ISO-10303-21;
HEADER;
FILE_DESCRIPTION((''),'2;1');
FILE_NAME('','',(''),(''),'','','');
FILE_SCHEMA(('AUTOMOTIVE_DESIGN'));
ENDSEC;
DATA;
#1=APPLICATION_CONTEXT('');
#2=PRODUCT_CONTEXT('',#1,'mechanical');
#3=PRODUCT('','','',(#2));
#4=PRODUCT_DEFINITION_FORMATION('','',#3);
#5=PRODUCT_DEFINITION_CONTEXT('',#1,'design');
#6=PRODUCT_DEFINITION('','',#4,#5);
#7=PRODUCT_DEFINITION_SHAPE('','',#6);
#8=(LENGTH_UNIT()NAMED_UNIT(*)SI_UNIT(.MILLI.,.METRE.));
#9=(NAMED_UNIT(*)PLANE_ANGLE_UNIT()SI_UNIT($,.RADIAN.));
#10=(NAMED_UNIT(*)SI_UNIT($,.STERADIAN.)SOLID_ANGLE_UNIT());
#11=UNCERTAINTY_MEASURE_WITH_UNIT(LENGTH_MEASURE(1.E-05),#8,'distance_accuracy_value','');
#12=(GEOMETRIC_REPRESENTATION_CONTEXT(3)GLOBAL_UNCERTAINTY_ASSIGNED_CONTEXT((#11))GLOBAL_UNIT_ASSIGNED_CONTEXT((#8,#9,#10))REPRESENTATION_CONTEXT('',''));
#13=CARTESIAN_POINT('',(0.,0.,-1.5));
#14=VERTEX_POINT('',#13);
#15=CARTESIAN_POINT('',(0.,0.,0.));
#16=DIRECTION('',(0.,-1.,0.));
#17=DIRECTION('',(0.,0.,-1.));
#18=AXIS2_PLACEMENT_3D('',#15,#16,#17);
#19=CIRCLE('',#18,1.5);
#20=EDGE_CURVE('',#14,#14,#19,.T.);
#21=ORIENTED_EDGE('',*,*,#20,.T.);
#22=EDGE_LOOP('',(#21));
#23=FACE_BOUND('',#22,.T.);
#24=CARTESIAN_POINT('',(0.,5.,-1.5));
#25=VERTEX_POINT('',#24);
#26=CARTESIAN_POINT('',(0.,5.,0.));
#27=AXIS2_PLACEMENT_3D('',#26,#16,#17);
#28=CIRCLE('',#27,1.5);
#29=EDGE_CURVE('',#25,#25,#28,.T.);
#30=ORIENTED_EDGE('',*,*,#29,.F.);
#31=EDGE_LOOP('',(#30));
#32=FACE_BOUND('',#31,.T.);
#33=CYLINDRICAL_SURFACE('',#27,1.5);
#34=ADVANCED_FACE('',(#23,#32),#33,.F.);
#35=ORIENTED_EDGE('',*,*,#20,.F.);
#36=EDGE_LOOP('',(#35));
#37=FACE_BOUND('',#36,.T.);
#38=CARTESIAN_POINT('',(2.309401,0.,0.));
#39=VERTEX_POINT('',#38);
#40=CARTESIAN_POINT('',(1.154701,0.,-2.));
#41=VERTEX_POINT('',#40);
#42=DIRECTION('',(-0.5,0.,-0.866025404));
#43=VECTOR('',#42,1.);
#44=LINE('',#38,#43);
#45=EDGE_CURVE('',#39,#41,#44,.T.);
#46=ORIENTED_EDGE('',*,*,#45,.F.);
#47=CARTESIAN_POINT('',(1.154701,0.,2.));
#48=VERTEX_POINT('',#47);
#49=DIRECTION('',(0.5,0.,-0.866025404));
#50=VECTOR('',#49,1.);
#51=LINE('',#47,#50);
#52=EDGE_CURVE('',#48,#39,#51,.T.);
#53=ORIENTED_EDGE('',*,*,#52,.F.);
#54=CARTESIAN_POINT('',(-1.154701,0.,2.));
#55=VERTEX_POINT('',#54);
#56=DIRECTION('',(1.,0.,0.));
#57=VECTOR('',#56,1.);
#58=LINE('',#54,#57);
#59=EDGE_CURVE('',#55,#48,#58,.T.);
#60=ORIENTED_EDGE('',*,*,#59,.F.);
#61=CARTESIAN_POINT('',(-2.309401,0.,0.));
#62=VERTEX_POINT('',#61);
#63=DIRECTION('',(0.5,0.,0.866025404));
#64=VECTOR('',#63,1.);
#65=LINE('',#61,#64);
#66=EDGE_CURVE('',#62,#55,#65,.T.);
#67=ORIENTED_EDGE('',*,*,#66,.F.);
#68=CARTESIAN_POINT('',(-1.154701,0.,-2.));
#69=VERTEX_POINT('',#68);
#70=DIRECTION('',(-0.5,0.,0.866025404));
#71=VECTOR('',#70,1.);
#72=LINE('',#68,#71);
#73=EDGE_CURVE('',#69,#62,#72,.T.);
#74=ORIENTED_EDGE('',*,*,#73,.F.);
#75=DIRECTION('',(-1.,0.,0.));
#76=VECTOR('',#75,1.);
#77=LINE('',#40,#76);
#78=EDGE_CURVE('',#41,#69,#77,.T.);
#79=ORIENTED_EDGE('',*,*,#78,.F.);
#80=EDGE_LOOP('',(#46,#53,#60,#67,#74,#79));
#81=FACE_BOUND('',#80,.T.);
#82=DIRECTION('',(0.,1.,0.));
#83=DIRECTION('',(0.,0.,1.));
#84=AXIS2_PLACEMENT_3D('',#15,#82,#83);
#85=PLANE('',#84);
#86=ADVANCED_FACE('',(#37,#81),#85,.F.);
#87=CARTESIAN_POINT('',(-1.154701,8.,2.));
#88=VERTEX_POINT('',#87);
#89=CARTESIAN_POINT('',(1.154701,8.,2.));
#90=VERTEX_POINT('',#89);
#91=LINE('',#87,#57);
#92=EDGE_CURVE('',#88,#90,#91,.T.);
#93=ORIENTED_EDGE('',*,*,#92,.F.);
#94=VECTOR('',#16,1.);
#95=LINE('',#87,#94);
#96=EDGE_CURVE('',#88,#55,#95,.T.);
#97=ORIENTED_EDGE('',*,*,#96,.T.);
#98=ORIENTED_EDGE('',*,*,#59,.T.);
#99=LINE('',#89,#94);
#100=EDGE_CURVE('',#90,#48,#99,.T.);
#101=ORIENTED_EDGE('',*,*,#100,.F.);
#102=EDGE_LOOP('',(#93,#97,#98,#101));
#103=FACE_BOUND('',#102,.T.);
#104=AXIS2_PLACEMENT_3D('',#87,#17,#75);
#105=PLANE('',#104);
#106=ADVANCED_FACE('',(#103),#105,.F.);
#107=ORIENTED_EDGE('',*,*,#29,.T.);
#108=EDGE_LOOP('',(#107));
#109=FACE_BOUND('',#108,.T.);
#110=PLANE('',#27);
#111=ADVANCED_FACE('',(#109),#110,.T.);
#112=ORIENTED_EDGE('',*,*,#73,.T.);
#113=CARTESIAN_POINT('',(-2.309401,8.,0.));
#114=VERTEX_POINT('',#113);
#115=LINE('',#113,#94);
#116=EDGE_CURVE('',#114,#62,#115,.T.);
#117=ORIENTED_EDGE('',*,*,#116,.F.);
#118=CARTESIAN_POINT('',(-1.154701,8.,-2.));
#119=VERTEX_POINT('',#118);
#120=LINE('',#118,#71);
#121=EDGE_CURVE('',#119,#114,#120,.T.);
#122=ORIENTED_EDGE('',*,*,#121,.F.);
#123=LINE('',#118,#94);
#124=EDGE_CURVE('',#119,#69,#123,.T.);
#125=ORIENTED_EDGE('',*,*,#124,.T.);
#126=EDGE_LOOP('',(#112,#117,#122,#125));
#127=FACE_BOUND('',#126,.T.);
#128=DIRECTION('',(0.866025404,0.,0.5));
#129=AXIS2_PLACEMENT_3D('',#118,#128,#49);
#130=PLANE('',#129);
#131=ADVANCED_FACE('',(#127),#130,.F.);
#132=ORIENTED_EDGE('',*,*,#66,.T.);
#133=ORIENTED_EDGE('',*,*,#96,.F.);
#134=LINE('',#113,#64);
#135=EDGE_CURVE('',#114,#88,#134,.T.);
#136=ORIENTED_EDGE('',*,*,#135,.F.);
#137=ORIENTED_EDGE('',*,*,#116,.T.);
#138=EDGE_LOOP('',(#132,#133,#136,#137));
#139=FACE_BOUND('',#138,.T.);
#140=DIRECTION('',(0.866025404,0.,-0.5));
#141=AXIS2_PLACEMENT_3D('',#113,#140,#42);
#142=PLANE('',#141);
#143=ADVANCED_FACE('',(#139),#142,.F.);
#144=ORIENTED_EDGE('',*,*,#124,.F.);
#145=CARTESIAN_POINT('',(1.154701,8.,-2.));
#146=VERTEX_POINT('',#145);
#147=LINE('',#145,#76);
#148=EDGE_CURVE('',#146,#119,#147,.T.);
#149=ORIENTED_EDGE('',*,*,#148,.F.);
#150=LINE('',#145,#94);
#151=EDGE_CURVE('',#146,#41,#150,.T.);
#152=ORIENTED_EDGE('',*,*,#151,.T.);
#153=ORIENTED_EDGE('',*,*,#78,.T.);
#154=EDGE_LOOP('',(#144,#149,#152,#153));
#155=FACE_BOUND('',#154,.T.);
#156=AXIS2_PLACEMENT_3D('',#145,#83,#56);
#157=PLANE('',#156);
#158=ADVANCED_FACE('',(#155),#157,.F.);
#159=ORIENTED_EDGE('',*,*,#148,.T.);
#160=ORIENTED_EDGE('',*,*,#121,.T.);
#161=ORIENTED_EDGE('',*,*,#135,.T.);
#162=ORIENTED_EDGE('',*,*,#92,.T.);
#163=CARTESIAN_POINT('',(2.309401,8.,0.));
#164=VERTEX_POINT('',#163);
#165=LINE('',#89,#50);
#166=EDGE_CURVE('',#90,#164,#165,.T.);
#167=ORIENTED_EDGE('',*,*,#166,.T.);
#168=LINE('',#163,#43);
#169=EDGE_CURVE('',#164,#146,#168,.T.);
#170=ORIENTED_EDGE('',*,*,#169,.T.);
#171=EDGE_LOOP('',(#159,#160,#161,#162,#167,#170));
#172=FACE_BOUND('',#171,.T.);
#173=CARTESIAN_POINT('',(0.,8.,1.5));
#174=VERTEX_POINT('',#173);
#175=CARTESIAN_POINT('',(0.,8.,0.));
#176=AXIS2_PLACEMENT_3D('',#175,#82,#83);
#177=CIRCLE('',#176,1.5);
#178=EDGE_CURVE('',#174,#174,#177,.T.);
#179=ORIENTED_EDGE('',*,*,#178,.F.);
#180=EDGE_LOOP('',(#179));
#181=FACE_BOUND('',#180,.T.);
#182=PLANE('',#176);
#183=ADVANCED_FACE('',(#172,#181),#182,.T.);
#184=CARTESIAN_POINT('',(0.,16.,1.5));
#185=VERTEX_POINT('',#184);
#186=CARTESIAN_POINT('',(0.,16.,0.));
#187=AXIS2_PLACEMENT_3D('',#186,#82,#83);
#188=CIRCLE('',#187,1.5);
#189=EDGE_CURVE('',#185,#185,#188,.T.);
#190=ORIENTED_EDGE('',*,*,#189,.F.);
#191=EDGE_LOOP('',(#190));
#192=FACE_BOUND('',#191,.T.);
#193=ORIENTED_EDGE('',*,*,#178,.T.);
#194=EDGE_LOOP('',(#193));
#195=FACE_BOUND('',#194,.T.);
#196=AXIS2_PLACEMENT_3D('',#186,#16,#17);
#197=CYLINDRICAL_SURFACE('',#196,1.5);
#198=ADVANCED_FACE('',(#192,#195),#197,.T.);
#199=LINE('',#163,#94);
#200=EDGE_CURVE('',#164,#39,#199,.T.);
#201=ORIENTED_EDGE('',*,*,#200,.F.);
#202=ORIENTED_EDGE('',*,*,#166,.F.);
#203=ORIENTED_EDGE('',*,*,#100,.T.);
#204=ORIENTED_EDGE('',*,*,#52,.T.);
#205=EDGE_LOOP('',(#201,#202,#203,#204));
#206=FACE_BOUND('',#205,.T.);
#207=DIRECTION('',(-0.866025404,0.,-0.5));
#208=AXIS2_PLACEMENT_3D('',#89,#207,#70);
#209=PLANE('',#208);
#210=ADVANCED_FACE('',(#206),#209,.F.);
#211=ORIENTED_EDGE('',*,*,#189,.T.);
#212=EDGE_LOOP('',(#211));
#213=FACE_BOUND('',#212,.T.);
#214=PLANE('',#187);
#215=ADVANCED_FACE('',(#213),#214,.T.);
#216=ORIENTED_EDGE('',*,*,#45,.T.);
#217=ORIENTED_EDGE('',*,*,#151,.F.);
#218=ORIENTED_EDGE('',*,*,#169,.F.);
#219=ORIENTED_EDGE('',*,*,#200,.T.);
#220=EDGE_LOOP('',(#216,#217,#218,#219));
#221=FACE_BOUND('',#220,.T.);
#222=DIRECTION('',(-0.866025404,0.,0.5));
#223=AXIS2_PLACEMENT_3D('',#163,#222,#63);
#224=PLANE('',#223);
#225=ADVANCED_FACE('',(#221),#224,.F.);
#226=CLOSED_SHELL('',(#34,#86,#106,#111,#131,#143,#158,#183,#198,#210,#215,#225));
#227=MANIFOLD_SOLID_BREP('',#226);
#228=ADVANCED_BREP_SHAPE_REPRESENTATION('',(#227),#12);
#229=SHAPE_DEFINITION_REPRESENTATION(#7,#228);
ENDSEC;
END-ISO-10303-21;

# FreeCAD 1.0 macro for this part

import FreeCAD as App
import Part
import Sketcher
from FreeCAD import Vector
Q = App.Units.Quantity


def add_polygon(sketch, points):
    """Adds a closed chain of lines whose ends are joined by coincident constraints."""
    first, n = sketch.GeometryCount, len(points)
    for a, b in zip(points, points[1:] + points[:1]):
        sketch.addGeometry(Part.LineSegment(App.Vector(*a, 0), App.Vector(*b, 0)), False)
    for i in range(n):
        sketch.addConstraint(Sketcher.Constraint("Coincident", first + i, 2, first + (i + 1) % n, 1))

doc = App.newDocument("Part")
params = doc.addObject("Spreadsheet::Sheet", "Params")
for row, (alias, value) in enumerate([
    ("pad1_length", "8 mm"),
    ("sketch2_diameter", "3 mm"),
    ("pad2_length", "8 mm"),
    ("sketch3_diameter", "3 mm"),
    ("pocket1_length", "5 mm"),
], start=1):
    params.set(f"A{row}", alias)
    params.set(f"B{row}", "=" + value)
    params.setAlias(f"B{row}", alias)

body = doc.addObject("PartDesign::Body", "Body")

# Sketch on XZ plane
sketch1 = body.newObject("Sketcher::SketchObject", "Sketch")
sketch1.AttachmentSupport = (doc.getObject("XZ_Plane"), [""])
sketch1.MapMode = "FlatFace"
add_polygon(sketch1, [(-1.2, 2), (1.2, 2), (2.3, 0), (1.2, -2), (-1.2, -2), (-2.3, 0)])  # lines 0-5
sketch1.addConstraint([
    Sketcher.Constraint("Horizontal", 0),
    Sketcher.Constraint("Horizontal", 3),
    Sketcher.Constraint("Symmetric", 0, 2, 3, 2, -1, 1),
    Sketcher.Constraint("Symmetric", 1, 2, 4, 2, -1, 1),
    Sketcher.Constraint("PointOnObject", 1, 2, -1),
    Sketcher.Constraint("Parallel", 2, 5),
    Sketcher.Constraint("Vertical", 0, 2, 2, 2),
    Sketcher.Constraint("Angle", 1, Q("-60 deg")),
    Sketcher.Constraint("DistanceY", -1, 1, 0, 2, 2.0),
    Sketcher.Constraint("DistanceX", 0, 1, 0, 2, 2.309401),
])
pad1 = body.newObject("PartDesign::Pad", "Pad")
pad1.Profile = sketch1
pad1.setExpression("Length", "Params.pad1_length")
pad1.Reversed = True

# Sketch on XZ plane
sketch2 = body.newObject("Sketcher::SketchObject", "Sketch001")
sketch2.AttachmentSupport = (doc.getObject("XZ_Plane"), [""])
sketch2.MapMode = "FlatFace"
sketch2.AttachmentOffset = App.Placement(Vector(0, 0, -8), App.Rotation())
sketch2.addGeometry(Part.Circle(Vector(0, 0, 0), Vector(0, 0, 1), 1.5), False)
sketch2.addConstraint([
    Sketcher.Constraint("Coincident", 0, 3, -1, 1),
    Sketcher.Constraint("Diameter", 0, 3.0),
])
sketch2.setExpression("Constraints[1]", "Params.sketch2_diameter")
pad2 = body.newObject("PartDesign::Pad", "Pad001")
pad2.Profile = sketch2
pad2.setExpression("Length", "Params.pad2_length")
pad2.Reversed = True

# Sketch on XZ plane
sketch3 = body.newObject("Sketcher::SketchObject", "Sketch002")
sketch3.AttachmentSupport = (doc.getObject("XZ_Plane"), [""])
sketch3.MapMode = "FlatFace"
sketch3.addGeometry(Part.Circle(Vector(0, 0, 0), Vector(0, 0, 1), 1.5), False)
sketch3.addConstraint([
    Sketcher.Constraint("Coincident", 0, 3, -1, 1),
    Sketcher.Constraint("Diameter", 0, 3.0),
])
sketch3.setExpression("Constraints[1]", "Params.sketch3_diameter")
pocket1 = body.newObject("PartDesign::Pocket", "Pocket")
pocket1.Profile = sketch3
pocket1.setExpression("Length", "Params.pocket1_length")

doc.recompute()
